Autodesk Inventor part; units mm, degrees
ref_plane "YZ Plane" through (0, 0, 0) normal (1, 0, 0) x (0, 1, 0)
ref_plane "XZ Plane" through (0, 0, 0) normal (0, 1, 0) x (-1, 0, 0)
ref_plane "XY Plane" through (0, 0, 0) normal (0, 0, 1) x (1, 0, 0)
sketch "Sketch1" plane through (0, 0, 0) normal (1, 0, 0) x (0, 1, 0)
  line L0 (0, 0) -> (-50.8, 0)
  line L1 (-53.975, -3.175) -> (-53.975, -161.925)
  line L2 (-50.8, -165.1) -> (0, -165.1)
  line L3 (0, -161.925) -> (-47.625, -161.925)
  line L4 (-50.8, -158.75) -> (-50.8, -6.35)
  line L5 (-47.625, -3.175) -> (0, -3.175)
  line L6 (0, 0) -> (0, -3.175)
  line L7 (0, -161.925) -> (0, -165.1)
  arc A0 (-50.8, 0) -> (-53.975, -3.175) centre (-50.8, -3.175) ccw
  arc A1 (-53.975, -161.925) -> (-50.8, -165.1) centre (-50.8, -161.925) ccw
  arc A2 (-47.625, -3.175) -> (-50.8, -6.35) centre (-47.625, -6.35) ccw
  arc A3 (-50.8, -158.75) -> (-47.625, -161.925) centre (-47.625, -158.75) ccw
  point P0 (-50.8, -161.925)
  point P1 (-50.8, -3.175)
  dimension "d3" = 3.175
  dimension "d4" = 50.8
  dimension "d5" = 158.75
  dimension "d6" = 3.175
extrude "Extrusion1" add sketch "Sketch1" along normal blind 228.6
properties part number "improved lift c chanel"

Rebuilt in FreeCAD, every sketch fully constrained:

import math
import FreeCAD as App
import Part
import Sketcher
Q = App.Units.Quantity

doc = App.newDocument("Part")
body = doc.addObject("PartDesign::Body", "Body")

# Sketch on YZ plane
sketch1 = body.newObject("Sketcher::SketchObject", "Sketch")
sketch1.AttachmentSupport = (doc.getObject("YZ_Plane"), [""])
sketch1.MapMode = "FlatFace"
sketch1.addGeometry([
    Part.LineSegment(App.Vector(0, -3.175, 0), App.Vector(0, 0, 0)),  # 0
    Part.LineSegment(App.Vector(0, 0, 0), App.Vector(-50.8, 0, 0)),  # 1
    Part.ArcOfCircle(Part.Circle(App.Vector(-50.8, -3.175, 0), App.Vector(0, 0, 1), 3.175), math.radians(90), math.radians(180)),  # 2
    Part.LineSegment(App.Vector(-53.975, -3.175, 0), App.Vector(-53.975, -161.925, 0)),  # 3
    Part.ArcOfCircle(Part.Circle(App.Vector(-50.8, -161.925, 0), App.Vector(0, 0, 1), 3.175), math.radians(180), math.radians(270)),  # 4
    Part.LineSegment(App.Vector(-50.8, -165.1, 0), App.Vector(0, -165.1, 0)),  # 5
    Part.LineSegment(App.Vector(0, -165.1, 0), App.Vector(0, -161.925, 0)),  # 6
    Part.LineSegment(App.Vector(0, -161.925, 0), App.Vector(-47.625, -161.925, 0)),  # 7
    Part.ArcOfCircle(Part.Circle(App.Vector(-47.625, -158.75, 0), App.Vector(0, 0, 1), 3.175), math.radians(180), math.radians(270)),  # 8
    Part.LineSegment(App.Vector(-50.8, -158.75, 0), App.Vector(-50.8, -6.35, 0)),  # 9
    Part.ArcOfCircle(Part.Circle(App.Vector(-47.625, -6.35, 0), App.Vector(0, 0, 1), 3.175), math.radians(90), math.radians(180)),  # 10
    Part.LineSegment(App.Vector(-47.625, -3.175, 0), App.Vector(0, -3.175, 0)),  # 11
], False)
sketch1.addConstraint([
    Sketcher.Constraint("Coincident", 0, 2, 1, 1),
    Sketcher.Constraint("Tangent", 1, 2, 2, 1),
    Sketcher.Constraint("Tangent", 2, 2, 3, 1),
    Sketcher.Constraint("Tangent", 3, 2, 4, 1),
    Sketcher.Constraint("Tangent", 4, 2, 5, 1),
    Sketcher.Constraint("Coincident", 5, 2, 6, 1),
    Sketcher.Constraint("Coincident", 6, 2, 7, 1),
    Sketcher.Constraint("Tangent", 7, 2, 8, 2),
    Sketcher.Constraint("Tangent", 8, 1, 9, 1),
    Sketcher.Constraint("Tangent", 9, 2, 10, 2),
    Sketcher.Constraint("Tangent", 10, 1, 11, 1),
    Sketcher.Constraint("Coincident", 11, 2, 0, 1),
    Sketcher.Constraint("Vertical", 0),
    Sketcher.Constraint("Horizontal", 1),
    Sketcher.Constraint("Vertical", 3),
    Sketcher.Constraint("Horizontal", 5),
    Sketcher.Constraint("Vertical", 6),
    Sketcher.Constraint("Horizontal", 7),
    Sketcher.Constraint("Vertical", 9),
    Sketcher.Constraint("Horizontal", 11),
    Sketcher.Constraint("Coincident", 0, 2, -1, 1),
    Sketcher.Constraint("Equal", 2, 4),
    Sketcher.Constraint("Equal", 4, 8),
    Sketcher.Constraint("Equal", 8, 10),
    Sketcher.Constraint("PointOnObject", 5, 2, -2),
    Sketcher.Constraint("Horizontal", 3, 2, 6, 2),
    Sketcher.Constraint("Horizontal", 2, 2, 10, 1),
    Sketcher.Constraint("Vertical", 4, 2, 8, 1),
    Sketcher.Constraint("DistanceX", 1, 2, 1, 1, Q("2 in")),
    Sketcher.Constraint("Radius", 2, Q("0.125 in")),
    Sketcher.Constraint("DistanceY", 3, 2, 3, 1, Q("6.25 in")),
])
pad1 = body.newObject("PartDesign::Pad", "Pad")
pad1.Profile = sketch1
pad1.Length = Q("9 in")

doc.recompute()
